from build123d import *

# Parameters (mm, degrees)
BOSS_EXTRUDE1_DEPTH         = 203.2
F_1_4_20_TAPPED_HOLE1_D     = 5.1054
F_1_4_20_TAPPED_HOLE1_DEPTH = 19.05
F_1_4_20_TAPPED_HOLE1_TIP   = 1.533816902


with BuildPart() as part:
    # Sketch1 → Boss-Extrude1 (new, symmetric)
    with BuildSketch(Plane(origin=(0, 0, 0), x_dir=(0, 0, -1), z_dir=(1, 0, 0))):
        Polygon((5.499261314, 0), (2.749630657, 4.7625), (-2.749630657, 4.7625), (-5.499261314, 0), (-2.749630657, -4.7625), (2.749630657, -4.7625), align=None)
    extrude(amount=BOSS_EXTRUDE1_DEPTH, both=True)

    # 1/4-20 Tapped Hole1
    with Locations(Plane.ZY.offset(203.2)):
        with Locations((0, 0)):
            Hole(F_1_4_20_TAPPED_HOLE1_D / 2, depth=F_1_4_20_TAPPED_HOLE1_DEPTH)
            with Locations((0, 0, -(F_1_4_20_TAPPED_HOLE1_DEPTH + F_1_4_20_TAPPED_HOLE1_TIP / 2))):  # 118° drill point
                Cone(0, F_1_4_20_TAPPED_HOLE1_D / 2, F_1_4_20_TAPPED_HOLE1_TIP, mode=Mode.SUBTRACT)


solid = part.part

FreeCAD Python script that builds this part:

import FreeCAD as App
import Part
import Sketcher

V = App.Vector
Q = App.Units.Quantity


def add_polygon(sketch, points):
    """Adds a closed chain of lines whose ends are joined by coincident constraints."""
    first, n = sketch.GeometryCount, len(points)
    for a, b in zip(points, points[1:] + points[:1]):
        sketch.addGeometry(Part.LineSegment(App.Vector(*a, 0), App.Vector(*b, 0)), False)
    for i in range(n):
        sketch.addConstraint(Sketcher.Constraint("Coincident", first + i, 2, first + (i + 1) % n, 1))

doc = App.newDocument("Part")
body = doc.addObject("PartDesign::Body", "Body")

sketch1 = body.newObject("Sketcher::SketchObject", "Sketch")
sketch1.AttachmentSupport = (doc.getObject("YZ_Plane"), [""])
sketch1.MapMode = "FlatFace"
add_polygon(sketch1, [(0, -5), (5, -3), (5, 3), (0, 5), (-5, 3), (-5, -3)])
sketch1.addConstraint([
    Sketcher.Constraint("Vertical", 1),
    Sketcher.Constraint("Vertical", 4),
    Sketcher.Constraint("Symmetric", 0, 2, 3, 2, -1, 1),
    Sketcher.Constraint("Symmetric", 2, 2, 5, 2, -1, 1),
    Sketcher.Constraint("PointOnObject", 2, 2, -2),
    Sketcher.Constraint("Parallel", 2, 5),
    Sketcher.Constraint("Horizontal", 1, 2, 3, 2),
    Sketcher.Constraint("Angle", 0, Q("30 deg")),
    Sketcher.Constraint("DistanceX", -1, 1, 0, 2, Q("0.1875 in")),
    Sketcher.Constraint("DistanceY", 1, 1, 1, 2, 5.499261),
])
pad1 = body.newObject("PartDesign::Pad", "Pad")
pad1.Profile = sketch1
pad1.Length = Q("16 in")
pad1.Midplane = True

sketch2 = body.newObject("Sketcher::SketchObject", "Sketch001")
sketch2.AttachmentSupport = (doc.getObject("YZ_Plane"), [""])
sketch2.MapMode = "FlatFace"
sketch2.AttachmentOffset = App.Placement(V(0, 0, -8 * 25.4), App.Rotation())
sketch2.addGeometry(Part.Circle(V(0, 0, 0), V(0, 0, 1), 2.6), False)
sketch2.addConstraint([
    Sketcher.Constraint("Coincident", 0, 3, -1, 1),
    Sketcher.Constraint("Diameter", 0, Q("0.201 in")),
])
doc.recompute()
hole = body.newObject("PartDesign::Hole", "Hole")
hole.Profile = sketch2
hole.ThreadType = "None"
hole.Diameter = Q("0.201 in")
hole.DepthType = "Dimension"
hole.Depth = Q("0.75 in")
hole.DrillPoint = "Angled"
hole.DrillPointAngle = 118
hole.Reversed = True

doc.recompute()
